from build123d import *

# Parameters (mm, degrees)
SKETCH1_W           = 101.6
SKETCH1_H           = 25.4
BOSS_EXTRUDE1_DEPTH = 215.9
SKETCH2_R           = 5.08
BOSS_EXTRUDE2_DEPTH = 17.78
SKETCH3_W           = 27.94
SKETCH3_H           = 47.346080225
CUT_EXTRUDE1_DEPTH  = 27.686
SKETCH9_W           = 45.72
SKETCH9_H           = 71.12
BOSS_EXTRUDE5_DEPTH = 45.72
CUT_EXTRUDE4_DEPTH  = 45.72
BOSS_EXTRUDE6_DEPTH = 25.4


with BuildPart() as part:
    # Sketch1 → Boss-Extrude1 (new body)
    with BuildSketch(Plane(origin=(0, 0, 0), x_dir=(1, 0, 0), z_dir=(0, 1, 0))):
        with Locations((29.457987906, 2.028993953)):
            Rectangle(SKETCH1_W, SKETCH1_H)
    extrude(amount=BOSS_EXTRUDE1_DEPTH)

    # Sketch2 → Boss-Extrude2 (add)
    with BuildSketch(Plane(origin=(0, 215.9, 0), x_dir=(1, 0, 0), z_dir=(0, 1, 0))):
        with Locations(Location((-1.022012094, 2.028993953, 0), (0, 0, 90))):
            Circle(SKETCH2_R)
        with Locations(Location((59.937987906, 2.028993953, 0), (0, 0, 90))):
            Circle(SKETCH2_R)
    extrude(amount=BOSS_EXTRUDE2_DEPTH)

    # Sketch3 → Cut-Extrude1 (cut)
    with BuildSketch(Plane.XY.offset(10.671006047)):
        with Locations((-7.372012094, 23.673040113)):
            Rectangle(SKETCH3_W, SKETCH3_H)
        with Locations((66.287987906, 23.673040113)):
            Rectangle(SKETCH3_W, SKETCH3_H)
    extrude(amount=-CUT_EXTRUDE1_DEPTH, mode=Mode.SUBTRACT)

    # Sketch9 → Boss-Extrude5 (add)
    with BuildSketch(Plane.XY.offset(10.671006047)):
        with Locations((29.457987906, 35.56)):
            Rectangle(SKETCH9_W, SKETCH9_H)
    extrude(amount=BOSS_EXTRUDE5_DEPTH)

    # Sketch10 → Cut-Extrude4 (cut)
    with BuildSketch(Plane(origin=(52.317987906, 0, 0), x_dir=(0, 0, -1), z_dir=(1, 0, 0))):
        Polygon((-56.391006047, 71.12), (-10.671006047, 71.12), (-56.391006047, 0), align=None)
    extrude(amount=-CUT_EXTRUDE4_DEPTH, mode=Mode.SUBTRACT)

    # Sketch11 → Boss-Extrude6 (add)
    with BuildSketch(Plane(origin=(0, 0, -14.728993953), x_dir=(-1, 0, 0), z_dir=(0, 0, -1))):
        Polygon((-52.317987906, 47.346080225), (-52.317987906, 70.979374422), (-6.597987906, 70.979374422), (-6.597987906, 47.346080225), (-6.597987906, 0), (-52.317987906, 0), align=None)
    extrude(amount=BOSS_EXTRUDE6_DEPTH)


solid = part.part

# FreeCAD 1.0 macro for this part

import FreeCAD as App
import Part
import Sketcher
from FreeCAD import Vector
Q = App.Units.Quantity


def add_polygon(sketch, points):
    """Adds a closed chain of lines whose ends are joined by coincident constraints."""
    first, n = sketch.GeometryCount, len(points)
    for a, b in zip(points, points[1:] + points[:1]):
        sketch.addGeometry(Part.LineSegment(App.Vector(*a, 0), App.Vector(*b, 0)), False)
    for i in range(n):
        sketch.addConstraint(Sketcher.Constraint("Coincident", first + i, 2, first + (i + 1) % n, 1))

doc = App.newDocument("Part")
body = doc.addObject("PartDesign::Body", "Body")

# Sketch on XZ plane
sketch1 = body.newObject("Sketcher::SketchObject", "Sketch")
sketch1.AttachmentSupport = (doc.getObject("XZ_Plane"), [""])
sketch1.MapMode = "FlatFace"
add_polygon(sketch1, [(-21.342012, -14.728994), (-21.342012, 10.671006), (80.257988, 10.671006), (80.257988, -14.728994)])  # lines 0-3
sketch1.addConstraint(Sketcher.Constraint("Vertical", 0))
sketch1.addConstraint(Sketcher.Constraint("Horizontal", 1))
sketch1.addConstraint(Sketcher.Constraint("Vertical", 2))
sketch1.addConstraint(Sketcher.Constraint("Horizontal", 3))
sketch1.addConstraint(Sketcher.Constraint("DistanceX", 1, 1, 1, 2, Q("4 in")))
sketch1.addConstraint(Sketcher.Constraint("DistanceY", 0, 1, 0, 2, Q("1 in")))
sketch1.addConstraint(Sketcher.Constraint("DistanceX", 0, 2, -1, 1, Q("21.342012 mm")))
sketch1.addConstraint(Sketcher.Constraint("DistanceY", -1, 1, 0, 2, Q("10.671006 mm")))
pad1 = body.newObject("PartDesign::Pad", "Pad")
pad1.Profile = sketch1
pad1.Length = Q("8.5 in")
pad1.Reversed = True

# Sketch on XZ plane
sketch2 = body.newObject("Sketcher::SketchObject", "Sketch001")
sketch2.AttachmentSupport = (doc.getObject("XZ_Plane"), [""])
sketch2.MapMode = "FlatFace"
sketch2.AttachmentOffset = App.Placement(Vector(0, 0, -8.5 * 25.4), App.Rotation())
sketch2.addGeometry(Part.Circle(Vector(-1.022012, -2.028994, 0), Vector(0, 0, 1), 5.08), False)
sketch2.addGeometry(Part.Circle(Vector(59.937988, -2.028994, 0), Vector(0, 0, 1), 5.08), False)
sketch2.addConstraint(Sketcher.Constraint("Equal", 0, 1))
sketch2.addConstraint(Sketcher.Constraint("Horizontal", 0, 3, 1, 3))
sketch2.addConstraint(Sketcher.Constraint("Diameter", 0, Q("0.4 in")))
sketch2.addConstraint(Sketcher.Constraint("DistanceX", 0, 3, 1, 3, Q("2.4 in")))
sketch2.addConstraint(Sketcher.Constraint("DistanceX", 0, 3, -1, 1, Q("1.022012 mm")))
sketch2.addConstraint(Sketcher.Constraint("DistanceY", 0, 3, -1, 1, Q("2.028994 mm")))
pad2 = body.newObject("PartDesign::Pad", "Pad001")
pad2.Profile = sketch2
pad2.Length = Q("0.7 in")
pad2.Reversed = True

# Sketch on XY plane
sketch3 = body.newObject("Sketcher::SketchObject", "Sketch002")
sketch3.AttachmentSupport = (doc.getObject("XY_Plane"), [""])
sketch3.MapMode = "FlatFace"
sketch3.AttachmentOffset = App.Placement(Vector(0, 0, 10.671006), App.Rotation())
add_polygon(sketch3, [(-21.342012, 47.34608), (-21.342012, 0), (6.597988, 0), (6.597988, 47.34608)])  # lines 0-3
add_polygon(sketch3, [(52.317988, 47.34608), (52.317988, 0), (80.257988, 0), (80.257988, 47.34608)])  # lines 4-7
sketch3.addConstraint(Sketcher.Constraint("Vertical", 0))
sketch3.addConstraint(Sketcher.Constraint("Horizontal", 1))
sketch3.addConstraint(Sketcher.Constraint("Vertical", 2))
sketch3.addConstraint(Sketcher.Constraint("Horizontal", 3))
sketch3.addConstraint(Sketcher.Constraint("Vertical", 4))
sketch3.addConstraint(Sketcher.Constraint("Horizontal", 5))
sketch3.addConstraint(Sketcher.Constraint("Vertical", 6))
sketch3.addConstraint(Sketcher.Constraint("Horizontal", 7))
sketch3.addConstraint(Sketcher.Constraint("PointOnObject", 0, 2, -1))
sketch3.addConstraint(Sketcher.Constraint("PointOnObject", 4, 2, -1))
sketch3.addConstraint(Sketcher.Constraint("Horizontal", 3, 2, 6, 2))
sketch3.addConstraint(Sketcher.Constraint("Equal", 3, 5))
sketch3.addConstraint(Sketcher.Constraint("DistanceX", 1, 1, 1, 2, Q("1.1 in")))
sketch3.addConstraint(Sketcher.Constraint("DistanceX", 0, 2, 5, 2, Q("4 in")))
sketch3.addConstraint(Sketcher.Constraint("DistanceY", 0, 2, 0, 1, Q("47.34608 mm")))
sketch3.addConstraint(Sketcher.Constraint("DistanceX", 0, 2, -1, 1, Q("21.342012 mm")))
pocket1 = body.newObject("PartDesign::Pocket", "Pocket")
pocket1.Profile = sketch3
pocket1.Length = Q("1.09 in")

# Sketch on XY plane
sketch4 = body.newObject("Sketcher::SketchObject", "Sketch003")
sketch4.AttachmentSupport = (doc.getObject("XY_Plane"), [""])
sketch4.MapMode = "FlatFace"
sketch4.AttachmentOffset = App.Placement(Vector(0, 0, 10.671006), App.Rotation())
add_polygon(sketch4, [(6.597988, 71.12), (6.597988, 0), (52.317988, 0), (52.317988, 71.12)])  # lines 0-3
sketch4.addConstraint(Sketcher.Constraint("Vertical", 0))
sketch4.addConstraint(Sketcher.Constraint("Horizontal", 1))
sketch4.addConstraint(Sketcher.Constraint("Vertical", 2))
sketch4.addConstraint(Sketcher.Constraint("Horizontal", 3))
sketch4.addConstraint(Sketcher.Constraint("PointOnObject", 0, 2, -1))
sketch4.addConstraint(Sketcher.Constraint("DistanceX", 1, 1, 1, 2, Q("1.8 in")))
sketch4.addConstraint(Sketcher.Constraint("DistanceY", 0, 2, 0, 1, Q("2.8 in")))
sketch4.addConstraint(Sketcher.Constraint("DistanceX", -1, 1, 0, 2, Q("6.597988 mm")))
pad3 = body.newObject("PartDesign::Pad", "Pad002")
pad3.Profile = sketch4
pad3.Length = Q("1.8 in")

# Sketch on YZ plane
sketch5 = body.newObject("Sketcher::SketchObject", "Sketch004")
sketch5.AttachmentSupport = (doc.getObject("YZ_Plane"), [""])
sketch5.MapMode = "FlatFace"
sketch5.AttachmentOffset = App.Placement(Vector(0, 0, 52.317988), App.Rotation())
add_polygon(sketch5, [(71.12, 10.671006), (71.12, 56.391006), (0, 56.391006)])  # lines 0-2
sketch5.addConstraint(Sketcher.Constraint("Vertical", 0))
sketch5.addConstraint(Sketcher.Constraint("Horizontal", 1))
sketch5.addConstraint(Sketcher.Constraint("PointOnObject", 1, 2, -2))
sketch5.addConstraint(Sketcher.Constraint("DistanceX", 1, 2, 1, 1, Q("2.8 in")))
sketch5.addConstraint(Sketcher.Constraint("DistanceY", 0, 1, 0, 2, Q("1.8 in")))
sketch5.addConstraint(Sketcher.Constraint("DistanceY", -1, 1, 0, 2, Q("56.391006 mm")))
pocket2 = body.newObject("PartDesign::Pocket", "Pocket001")
pocket2.Profile = sketch5
pocket2.Length = Q("1.8 in")

# Sketch on XY plane
sketch6 = body.newObject("Sketcher::SketchObject", "Sketch005")
sketch6.AttachmentSupport = (doc.getObject("XY_Plane"), [""])
sketch6.MapMode = "FlatFace"
sketch6.AttachmentOffset = App.Placement(Vector(0, 0, -14.728994), App.Rotation())
add_polygon(sketch6, [(52.317988, 70.979374), (52.317988, 0), (6.597988, 0), (6.597988, 70.979374)])  # lines 0-3
sketch6.addConstraint(Sketcher.Constraint("Vertical", 0))
sketch6.addConstraint(Sketcher.Constraint("Horizontal", 1))
sketch6.addConstraint(Sketcher.Constraint("Vertical", 2))
sketch6.addConstraint(Sketcher.Constraint("Horizontal", 3))
sketch6.addConstraint(Sketcher.Constraint("PointOnObject", 0, 2, -1))
sketch6.addConstraint(Sketcher.Constraint("DistanceX", 1, 2, 1, 1, Q("1.8 in")))
sketch6.addConstraint(Sketcher.Constraint("DistanceY", 0, 2, 0, 1, Q("70.979374 mm")))
sketch6.addConstraint(Sketcher.Constraint("DistanceX", -1, 1, 0, 2, Q("52.317988 mm")))
pad4 = body.newObject("PartDesign::Pad", "Pad003")
pad4.Profile = sketch6
pad4.Length = Q("1 in")
pad4.Reversed = True

doc.recompute()
